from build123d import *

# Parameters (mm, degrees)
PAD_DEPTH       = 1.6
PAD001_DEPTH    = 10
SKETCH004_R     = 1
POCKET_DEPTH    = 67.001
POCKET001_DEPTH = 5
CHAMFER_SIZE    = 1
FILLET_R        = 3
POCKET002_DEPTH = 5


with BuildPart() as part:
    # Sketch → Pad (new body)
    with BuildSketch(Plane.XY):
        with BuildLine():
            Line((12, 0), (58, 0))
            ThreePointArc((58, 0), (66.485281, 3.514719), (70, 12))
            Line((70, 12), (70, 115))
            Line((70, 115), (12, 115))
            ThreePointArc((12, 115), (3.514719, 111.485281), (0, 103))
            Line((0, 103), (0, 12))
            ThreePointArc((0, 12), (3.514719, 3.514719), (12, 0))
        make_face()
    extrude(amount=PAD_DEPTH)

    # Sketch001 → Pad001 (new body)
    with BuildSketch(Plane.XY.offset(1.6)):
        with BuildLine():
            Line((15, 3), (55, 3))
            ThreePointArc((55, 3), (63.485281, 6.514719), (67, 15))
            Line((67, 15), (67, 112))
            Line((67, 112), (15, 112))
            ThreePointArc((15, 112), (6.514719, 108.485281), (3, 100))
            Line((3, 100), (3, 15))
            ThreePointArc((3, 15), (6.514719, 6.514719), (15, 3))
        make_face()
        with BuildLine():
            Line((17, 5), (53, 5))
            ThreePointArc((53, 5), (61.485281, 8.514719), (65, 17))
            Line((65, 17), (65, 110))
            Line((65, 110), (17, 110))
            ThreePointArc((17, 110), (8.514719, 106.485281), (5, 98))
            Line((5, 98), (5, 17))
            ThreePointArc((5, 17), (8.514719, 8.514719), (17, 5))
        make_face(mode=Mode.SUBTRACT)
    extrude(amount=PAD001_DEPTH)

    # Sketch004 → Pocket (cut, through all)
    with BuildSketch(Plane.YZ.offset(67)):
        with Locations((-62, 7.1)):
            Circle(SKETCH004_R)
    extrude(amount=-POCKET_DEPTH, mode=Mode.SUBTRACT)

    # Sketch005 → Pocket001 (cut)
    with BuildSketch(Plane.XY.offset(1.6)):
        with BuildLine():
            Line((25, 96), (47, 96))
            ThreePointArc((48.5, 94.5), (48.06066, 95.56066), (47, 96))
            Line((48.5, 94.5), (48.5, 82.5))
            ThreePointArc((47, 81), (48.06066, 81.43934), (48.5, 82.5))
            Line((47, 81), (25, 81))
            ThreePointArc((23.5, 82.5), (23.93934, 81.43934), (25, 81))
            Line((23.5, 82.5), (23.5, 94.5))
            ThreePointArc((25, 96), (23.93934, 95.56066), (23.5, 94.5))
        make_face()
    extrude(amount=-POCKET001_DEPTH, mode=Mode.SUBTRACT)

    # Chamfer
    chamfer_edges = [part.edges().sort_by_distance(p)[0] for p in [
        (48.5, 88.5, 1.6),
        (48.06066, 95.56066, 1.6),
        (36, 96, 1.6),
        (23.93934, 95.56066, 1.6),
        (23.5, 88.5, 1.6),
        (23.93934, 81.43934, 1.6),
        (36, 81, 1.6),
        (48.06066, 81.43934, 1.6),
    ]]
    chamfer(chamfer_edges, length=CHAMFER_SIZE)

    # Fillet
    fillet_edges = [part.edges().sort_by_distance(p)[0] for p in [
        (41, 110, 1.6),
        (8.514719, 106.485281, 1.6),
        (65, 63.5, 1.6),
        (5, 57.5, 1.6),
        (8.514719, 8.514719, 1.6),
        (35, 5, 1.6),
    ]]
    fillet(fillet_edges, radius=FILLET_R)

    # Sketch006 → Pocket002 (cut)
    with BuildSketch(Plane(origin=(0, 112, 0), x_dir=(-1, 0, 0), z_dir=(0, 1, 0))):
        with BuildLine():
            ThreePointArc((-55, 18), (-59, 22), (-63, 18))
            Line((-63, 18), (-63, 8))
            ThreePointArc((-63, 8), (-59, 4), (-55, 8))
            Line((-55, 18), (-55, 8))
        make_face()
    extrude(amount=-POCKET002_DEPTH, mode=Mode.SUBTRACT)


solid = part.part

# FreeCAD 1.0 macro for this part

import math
import FreeCAD as App
import Part
import Sketcher

V = App.Vector


def edges_at(feature, points):
    """Names of the edges that pass closest to the given points."""
    edges = feature.Shape.Edges
    near = lambda p: min(range(len(edges)), key=lambda i: edges[i].distToShape(Part.Vertex(*p))[0])
    return sorted({f"Edge{near(p) + 1}" for p in points})

doc = App.newDocument("Part")
params = doc.addObject("Spreadsheet::Sheet", "Params")
for row, (alias, value) in enumerate([
    ("sketch1_radius", "12.000001 mm"),
    ("sketch1_width", "46 mm"),
    ("sketch1_height", "103 mm"),
    ("pad1_length", "1.6 mm"),
    ("sketch2_radius", "12.000001 mm"),
    ("sketch2_width", "40 mm"),
    ("sketch2_width2", "36 mm"),
    ("sketch2_height", "97 mm"),
    ("sketch2_height2", "81 mm"),
    ("pad2_length", "10 mm"),
    ("sketch3_diameter", "2 mm"),
    ("sketch4_radius", "1.500001 mm"),
    ("sketch4_width", "22 mm"),
    ("sketch4_height", "12 mm"),
    ("pocket2_length", "5 mm"),
    ("chamfer_size", "1 mm"),
    ("fillet_radius", "3 mm"),
    ("sketch5_radius", "4 mm"),
    ("sketch5_height", "10 mm"),
    ("pocket3_length", "5 mm"),
], start=1):
    params.set(f"A{row}", alias)
    params.set(f"B{row}", "=" + value)
    params.setAlias(f"B{row}", alias)

body = doc.addObject("PartDesign::Body", "Body")

# Sketch on XY plane
sketch1 = body.newObject("Sketcher::SketchObject", "Sketch")
sketch1.AttachmentSupport = (doc.getObject("XY_Plane"), [""])
sketch1.MapMode = "FlatFace"
sketch1.addGeometry([
    Part.LineSegment(V(12, 0, 0), V(58, 0, 0)),  # 0
    Part.ArcOfCircle(Part.Circle(V(58, 12, 0), V(0, 0, 1), 12), math.radians(-90), math.radians(0)),  # 1
    Part.LineSegment(V(70, 12, 0), V(70, 115, 0)),  # 2
    Part.LineSegment(V(70, 115, 0), V(12, 115, 0)),  # 3
    Part.ArcOfCircle(Part.Circle(V(12, 103, 0), V(0, 0, 1), 12), math.radians(90), math.radians(180)),  # 4
    Part.LineSegment(V(0, 103, 0), V(0, 12, 0)),  # 5
    Part.ArcOfCircle(Part.Circle(V(12, 12, 0), V(0, 0, 1), 12), math.radians(-180), math.radians(-90)),  # 6
], False)
sketch1.addConstraint([
    Sketcher.Constraint("Tangent", 0, 2, 1, 1),
    Sketcher.Constraint("Tangent", 1, 2, 2, 1),
    Sketcher.Constraint("Coincident", 2, 2, 3, 1),
    Sketcher.Constraint("Tangent", 3, 2, 4, 1),
    Sketcher.Constraint("Tangent", 4, 2, 5, 1),
    Sketcher.Constraint("Tangent", 5, 2, 6, 1),
    Sketcher.Constraint("Tangent", 6, 2, 0, 1),
    Sketcher.Constraint("Horizontal", 0),
    Sketcher.Constraint("Vertical", 2),
    Sketcher.Constraint("Horizontal", 3),
    Sketcher.Constraint("Vertical", 5),
    Sketcher.Constraint("Equal", 1, 4),
    Sketcher.Constraint("Equal", 4, 6),
    Sketcher.Constraint("PointOnObject", 0, 2, -1),
    Sketcher.Constraint("PointOnObject", 4, 2, -2),
    Sketcher.Constraint("Radius", 1, 12.000001),
    Sketcher.Constraint("DistanceX", 0, 1, 0, 2, 46.0),
    Sketcher.Constraint("DistanceY", 2, 1, 2, 2, 103.0),
])
sketch1.setExpression("Constraints[15]", "Params.sketch1_radius")
sketch1.setExpression("Constraints[16]", "Params.sketch1_width")
sketch1.setExpression("Constraints[17]", "Params.sketch1_height")
pad1 = body.newObject("PartDesign::Pad", "Pad")
pad1.Profile = sketch1
pad1.setExpression("Length", "Params.pad1_length")

# Sketch on XY plane
sketch2 = body.newObject("Sketcher::SketchObject", "Sketch001")
sketch2.AttachmentSupport = (doc.getObject("XY_Plane"), [""])
sketch2.MapMode = "FlatFace"
sketch2.AttachmentOffset = App.Placement(V(0, 0, 1.6), App.Rotation())
sketch2.addGeometry([
    Part.LineSegment(V(15, 3, 0), V(55, 3, 0)),  # 0
    Part.ArcOfCircle(Part.Circle(V(55, 15, 0), V(0, 0, 1), 12), math.radians(-90), math.radians(0)),  # 1
    Part.LineSegment(V(67, 15, 0), V(67, 112, 0)),  # 2
    Part.LineSegment(V(67, 112, 0), V(15, 112, 0)),  # 3
    Part.ArcOfCircle(Part.Circle(V(15, 100, 0), V(0, 0, 1), 12), math.radians(90), math.radians(180)),  # 4
    Part.LineSegment(V(3, 100, 0), V(3, 15, 0)),  # 5
    Part.ArcOfCircle(Part.Circle(V(15, 15, 0), V(0, 0, 1), 12), math.radians(-180), math.radians(-90)),  # 6
    Part.LineSegment(V(53, 5, 0), V(17, 5, 0)),  # 7
    Part.ArcOfCircle(Part.Circle(V(17, 17, 0), V(0, 0, 1), 12), math.radians(-180), math.radians(-90)),  # 8
    Part.LineSegment(V(5, 17, 0), V(5, 98, 0)),  # 9
    Part.ArcOfCircle(Part.Circle(V(17, 98, 0), V(0, 0, 1), 12), math.radians(90), math.radians(180)),  # 10
    Part.LineSegment(V(17, 110, 0), V(65, 110, 0)),  # 11
    Part.LineSegment(V(65, 110, 0), V(65, 17, 0)),  # 12
    Part.ArcOfCircle(Part.Circle(V(53, 17, 0), V(0, 0, 1), 12), math.radians(-90), math.radians(0)),  # 13
], False)
sketch2.addConstraint([
    Sketcher.Constraint("Tangent", 0, 2, 1, 1),
    Sketcher.Constraint("Tangent", 1, 2, 2, 1),
    Sketcher.Constraint("Coincident", 2, 2, 3, 1),
    Sketcher.Constraint("Tangent", 3, 2, 4, 1),
    Sketcher.Constraint("Tangent", 4, 2, 5, 1),
    Sketcher.Constraint("Tangent", 5, 2, 6, 1),
    Sketcher.Constraint("Tangent", 6, 2, 0, 1),
    Sketcher.Constraint("Tangent", 7, 2, 8, 2),
    Sketcher.Constraint("Tangent", 8, 1, 9, 1),
    Sketcher.Constraint("Tangent", 9, 2, 10, 2),
    Sketcher.Constraint("Tangent", 10, 1, 11, 1),
    Sketcher.Constraint("Coincident", 11, 2, 12, 1),
    Sketcher.Constraint("Tangent", 12, 2, 13, 2),
    Sketcher.Constraint("Tangent", 13, 1, 7, 1),
    Sketcher.Constraint("Horizontal", 0),
    Sketcher.Constraint("Vertical", 2),
    Sketcher.Constraint("Horizontal", 3),
    Sketcher.Constraint("Vertical", 5),
    Sketcher.Constraint("Horizontal", 7),
    Sketcher.Constraint("Vertical", 9),
    Sketcher.Constraint("Horizontal", 11),
    Sketcher.Constraint("Vertical", 12),
    Sketcher.Constraint("Equal", 1, 4),
    Sketcher.Constraint("Equal", 4, 6),
    Sketcher.Constraint("Equal", 6, 8),
    Sketcher.Constraint("Equal", 8, 10),
    Sketcher.Constraint("Equal", 10, 13),
    Sketcher.Constraint("Radius", 1, 12.000001),
    Sketcher.Constraint("DistanceX", 0, 1, 0, 2, 40.0),
    Sketcher.Constraint("DistanceX", 7, 2, 7, 1, 36.0),
    Sketcher.Constraint("DistanceY", 2, 1, 2, 2, 97.0),
    Sketcher.Constraint("DistanceY", 9, 1, 9, 2, 81.0),
    Sketcher.Constraint("DistanceX", -1, 1, 1, 3, 54.999999),
    Sketcher.Constraint("DistanceY", -1, 1, 1, 3, 15.000001),
    Sketcher.Constraint("DistanceX", -1, 1, 8, 3, 17.000001),
    Sketcher.Constraint("DistanceY", -1, 1, 8, 3, 17.000001),
])
sketch2.setExpression("Constraints[27]", "Params.sketch2_radius")
sketch2.setExpression("Constraints[28]", "Params.sketch2_width")
sketch2.setExpression("Constraints[29]", "Params.sketch2_width2")
sketch2.setExpression("Constraints[30]", "Params.sketch2_height")
sketch2.setExpression("Constraints[31]", "Params.sketch2_height2")
pad2 = body.newObject("PartDesign::Pad", "Pad001")
pad2.Profile = sketch2
pad2.setExpression("Length", "Params.pad2_length")

# Sketch on YZ plane
sketch3 = body.newObject("Sketcher::SketchObject", "Sketch002")
sketch3.AttachmentSupport = (doc.getObject("YZ_Plane"), [""])
sketch3.MapMode = "FlatFace"
sketch3.AttachmentOffset = App.Placement(V(0, 0, 67), App.Rotation())
sketch3.addGeometry(Part.Circle(V(-62, 7.1, 0), V(0, 0, 1), 1), False)
sketch3.addConstraint([
    Sketcher.Constraint("Diameter", 0, 2.0),
    Sketcher.Constraint("DistanceX", 0, 3, -1, 1, 62.0),
    Sketcher.Constraint("DistanceY", -1, 1, 0, 3, 7.1),
])
sketch3.setExpression("Constraints[0]", "Params.sketch3_diameter")
pocket1 = body.newObject("PartDesign::Pocket", "Pocket")
pocket1.Profile = sketch3
pocket1.Type = "ThroughAll"

# Sketch on XY plane
sketch4 = body.newObject("Sketcher::SketchObject", "Sketch003")
sketch4.AttachmentSupport = (doc.getObject("XY_Plane"), [""])
sketch4.MapMode = "FlatFace"
sketch4.AttachmentOffset = App.Placement(V(0, 0, 1.6), App.Rotation())
sketch4.addGeometry([
    Part.LineSegment(V(47, 96, 0), V(25, 96, 0)),  # 0
    Part.ArcOfCircle(Part.Circle(V(25, 94.5, 0), V(0, 0, 1), 1.5), math.radians(90), math.radians(180)),  # 1
    Part.LineSegment(V(23.5, 94.5, 0), V(23.5, 82.5, 0)),  # 2
    Part.ArcOfCircle(Part.Circle(V(25, 82.5, 0), V(0, 0, 1), 1.5), math.radians(-180), math.radians(-90)),  # 3
    Part.LineSegment(V(25, 81, 0), V(47, 81, 0)),  # 4
    Part.ArcOfCircle(Part.Circle(V(47, 82.5, 0), V(0, 0, 1), 1.5), math.radians(-90), math.radians(0)),  # 5
    Part.LineSegment(V(48.5, 82.5, 0), V(48.5, 94.5, 0)),  # 6
    Part.ArcOfCircle(Part.Circle(V(47, 94.5, 0), V(0, 0, 1), 1.5), math.radians(0), math.radians(90)),  # 7
], False)
sketch4.addConstraint([
    Sketcher.Constraint("Tangent", 0, 2, 1, 1),
    Sketcher.Constraint("Tangent", 1, 2, 2, 1),
    Sketcher.Constraint("Tangent", 2, 2, 3, 1),
    Sketcher.Constraint("Tangent", 3, 2, 4, 1),
    Sketcher.Constraint("Tangent", 4, 2, 5, 1),
    Sketcher.Constraint("Tangent", 5, 2, 6, 1),
    Sketcher.Constraint("Tangent", 6, 2, 7, 1),
    Sketcher.Constraint("Tangent", 7, 2, 0, 1),
    Sketcher.Constraint("Horizontal", 0),
    Sketcher.Constraint("Vertical", 2),
    Sketcher.Constraint("Horizontal", 4),
    Sketcher.Constraint("Vertical", 6),
    Sketcher.Constraint("Equal", 1, 3),
    Sketcher.Constraint("Equal", 3, 5),
    Sketcher.Constraint("Equal", 5, 7),
    Sketcher.Constraint("Radius", 1, 1.500001),
    Sketcher.Constraint("DistanceX", 0, 2, 0, 1, 22.0),
    Sketcher.Constraint("DistanceY", 2, 2, 2, 1, 12.0),
    Sketcher.Constraint("DistanceX", -1, 1, 1, 3, 25.000001),
    Sketcher.Constraint("DistanceY", -1, 1, 0, 2, 96.0),
])
sketch4.setExpression("Constraints[15]", "Params.sketch4_radius")
sketch4.setExpression("Constraints[16]", "Params.sketch4_width")
sketch4.setExpression("Constraints[17]", "Params.sketch4_height")
pocket2 = body.newObject("PartDesign::Pocket", "Pocket001")
pocket2.Profile = sketch4
pocket2.setExpression("Length", "Params.pocket2_length")
doc.recompute()

chamfer = body.newObject("PartDesign::Chamfer", "Chamfer")
chamfer.Base = (pocket2, edges_at(pocket2, [
    (48.5, 88.5, 1.6),
    (48.061, 95.561, 1.6),
    (36, 96, 1.6),
    (23.939, 95.561, 1.6),
    (23.5, 88.5, 1.6),
    (23.939, 81.439, 1.6),
    (36, 81, 1.6),
    (48.061, 81.439, 1.6),
]))
chamfer.setExpression("Size", "Params.chamfer_size")
doc.recompute()

fillet = body.newObject("PartDesign::Fillet", "Fillet")
fillet.Base = (chamfer, edges_at(chamfer, [
    (41, 110, 1.6),
    (8.515, 106.485, 1.6),
    (65, 63.5, 1.6),
    (5, 57.5, 1.6),
    (8.515, 8.515, 1.6),
    (35, 5, 1.6),
]))
fillet.setExpression("Radius", "Params.fillet_radius")

# Sketch on XZ plane
sketch5 = body.newObject("Sketcher::SketchObject", "Sketch004")
sketch5.AttachmentSupport = (doc.getObject("XZ_Plane"), [""])
sketch5.MapMode = "FlatFace"
sketch5.AttachmentOffset = App.Placement(V(0, 0, -112), App.Rotation())
sketch5.addGeometry([
    Part.ArcOfCircle(Part.Circle(V(59, 18, 0), V(0, 0, 1), 4), math.radians(0), math.radians(180)),
    Part.LineSegment(V(63, 18, 0), V(63, 8, 0)),
    Part.ArcOfCircle(Part.Circle(V(59, 8, 0), V(0, 0, 1), 4), math.radians(180), math.radians(360)),
    Part.LineSegment(V(55, 8, 0), V(55, 18, 0)),
], False)
sketch5.addConstraint([
    Sketcher.Constraint("Tangent", 0, 1, 1, 1),
    Sketcher.Constraint("Tangent", 1, 2, 2, 2),
    Sketcher.Constraint("Tangent", 2, 1, 3, 1),
    Sketcher.Constraint("Tangent", 3, 2, 0, 2),
    Sketcher.Constraint("Vertical", 1),
    Sketcher.Constraint("Vertical", 3),
    Sketcher.Constraint("Radius", 0, 4.0),
    Sketcher.Constraint("DistanceY", 1, 2, 1, 1, 10.0),
    Sketcher.Constraint("DistanceX", -1, 1, 0, 3, 59.0),
    Sketcher.Constraint("DistanceY", -1, 1, 0, 3, 18.0),
])
sketch5.setExpression("Constraints[6]", "Params.sketch5_radius")
sketch5.setExpression("Constraints[7]", "Params.sketch5_height")
pocket3 = body.newObject("PartDesign::Pocket", "Pocket002")
pocket3.Profile = sketch5
pocket3.setExpression("Length", "Params.pocket3_length")
pocket3.Reversed = True

doc.recompute()
